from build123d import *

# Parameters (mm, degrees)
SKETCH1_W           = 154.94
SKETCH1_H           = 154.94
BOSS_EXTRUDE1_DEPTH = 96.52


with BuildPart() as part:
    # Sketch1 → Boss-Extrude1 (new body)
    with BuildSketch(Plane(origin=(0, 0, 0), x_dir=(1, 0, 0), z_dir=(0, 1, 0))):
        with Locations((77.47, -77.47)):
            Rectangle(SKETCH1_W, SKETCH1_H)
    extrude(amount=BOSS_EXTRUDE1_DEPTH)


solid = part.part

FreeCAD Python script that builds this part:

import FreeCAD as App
import Part
import Sketcher
Q = App.Units.Quantity


def add_polygon(sketch, points):
    """Adds a closed chain of lines whose ends are joined by coincident constraints."""
    first, n = sketch.GeometryCount, len(points)
    for a, b in zip(points, points[1:] + points[:1]):
        sketch.addGeometry(Part.LineSegment(App.Vector(*a, 0), App.Vector(*b, 0)), False)
    for i in range(n):
        sketch.addConstraint(Sketcher.Constraint("Coincident", first + i, 2, first + (i + 1) % n, 1))

doc = App.newDocument("Part")
body = doc.addObject("PartDesign::Body", "Body")

# Sketch on XZ plane
sketch1 = body.newObject("Sketcher::SketchObject", "Sketch")
sketch1.AttachmentSupport = (doc.getObject("XZ_Plane"), [""])
sketch1.MapMode = "FlatFace"
add_polygon(sketch1, [(0, 0), (0, 155), (155, 155), (155, 0)])  # lines 0-3
sketch1.addConstraint([
    Sketcher.Constraint("Vertical", 0),
    Sketcher.Constraint("Horizontal", 1),
    Sketcher.Constraint("Vertical", 2),
    Sketcher.Constraint("Horizontal", 3),
    Sketcher.Constraint("Coincident", 3, 2, -1, 1),
    Sketcher.Constraint("Equal", 3, 0),
    Sketcher.Constraint("DistanceX", 1, 1, 1, 2, Q("6.1 in")),
])
pad1 = body.newObject("PartDesign::Pad", "Pad")
pad1.Profile = sketch1
pad1.Length = Q("3.8 in")
pad1.Reversed = True

doc.recompute()
